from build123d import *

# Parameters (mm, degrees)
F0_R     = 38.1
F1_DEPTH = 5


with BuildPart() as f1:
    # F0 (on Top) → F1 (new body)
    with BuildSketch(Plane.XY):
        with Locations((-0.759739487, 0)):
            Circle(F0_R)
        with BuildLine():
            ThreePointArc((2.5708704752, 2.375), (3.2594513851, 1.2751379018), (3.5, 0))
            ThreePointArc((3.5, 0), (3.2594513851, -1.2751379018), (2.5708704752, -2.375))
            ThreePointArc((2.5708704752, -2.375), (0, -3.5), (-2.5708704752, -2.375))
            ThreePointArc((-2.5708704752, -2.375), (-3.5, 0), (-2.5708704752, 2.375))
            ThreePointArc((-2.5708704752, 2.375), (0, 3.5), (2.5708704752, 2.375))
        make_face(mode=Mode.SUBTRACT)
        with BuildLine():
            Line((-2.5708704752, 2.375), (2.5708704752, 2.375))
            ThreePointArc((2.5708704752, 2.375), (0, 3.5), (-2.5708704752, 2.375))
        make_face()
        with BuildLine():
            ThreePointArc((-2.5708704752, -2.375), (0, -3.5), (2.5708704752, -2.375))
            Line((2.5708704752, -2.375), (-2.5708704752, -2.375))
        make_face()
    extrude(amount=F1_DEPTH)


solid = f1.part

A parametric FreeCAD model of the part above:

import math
import FreeCAD as App
import Part
import Sketcher
Q = App.Units.Quantity

doc = App.newDocument("Part")
body = doc.addObject("PartDesign::Body", "Body")

# Sketch on XY plane
sketch1 = doc.addObject("Sketcher::SketchObject", "Sketch")
body.addObject(sketch1)
sketch1.AttachmentSupport = (doc.XY_Plane, [""])
sketch1.MapMode = "FlatFace"
sketch1.addGeometry(Part.Circle(App.Vector(-0.8, 0, 0), App.Vector(0, 0, 1), 38.1), False)
sketch1.addGeometry(Part.ArcOfCircle(Part.Circle(App.Vector(0, 0, 0), App.Vector(0, 0, 1), 3.5), math.radians(137), math.radians(223)), False)
sketch1.addGeometry(Part.LineSegment(App.Vector(-2.6, 2.4, 0), App.Vector(2.6, 2.4, 0)), False)
sketch1.addGeometry(Part.ArcOfCircle(Part.Circle(App.Vector(0, 0, 0), App.Vector(0, 0, 1), 3.5), math.radians(0), math.radians(43)), False)
sketch1.addGeometry(Part.ArcOfCircle(Part.Circle(App.Vector(0, 0, 0), App.Vector(0, 0, 1), 3.5), math.radians(-43), math.radians(0)), False)
sketch1.addGeometry(Part.LineSegment(App.Vector(2.6, -2.4, 0), App.Vector(-2.6, -2.4, 0)), False)
sketch1.addConstraint(Sketcher.Constraint("Coincident", 1, 1, 2, 1))
sketch1.addConstraint(Sketcher.Constraint("Coincident", 2, 2, 3, 2))
sketch1.addConstraint(Sketcher.Constraint("Tangent", 3, 1, 4, 2))
sketch1.addConstraint(Sketcher.Constraint("Coincident", 4, 1, 5, 1))
sketch1.addConstraint(Sketcher.Constraint("Coincident", 5, 2, 1, 2))
sketch1.addConstraint(Sketcher.Constraint("Horizontal", 2))
sketch1.addConstraint(Sketcher.Constraint("Horizontal", 5))
sketch1.addConstraint(Sketcher.Constraint("Coincident", 1, 3, -1, 1))
sketch1.addConstraint(Sketcher.Constraint("Coincident", 3, 3, -1, 1))
sketch1.addConstraint(Sketcher.Constraint("Equal", 1, 3))
sketch1.addConstraint(Sketcher.Constraint("Equal", 3, 4))
sketch1.addConstraint(Sketcher.Constraint("PointOnObject", 0, 3, -1))
sketch1.addConstraint(Sketcher.Constraint("PointOnObject", 3, 1, -1))
sketch1.addConstraint(Sketcher.Constraint("Vertical", 2, 2, 4, 1))
sketch1.addConstraint(Sketcher.Constraint("Diameter", 0, Q("76.2 mm")))
sketch1.addConstraint(Sketcher.Constraint("Radius", 1, Q("3.5 mm")))
sketch1.addConstraint(Sketcher.Constraint("DistanceY", 5, 2, 1, 1, Q("4.75 mm")))
sketch1.addConstraint(Sketcher.Constraint("DistanceX", 0, 3, -1, 1, Q("0.759739 mm")))
pad1 = doc.addObject("PartDesign::Pad", "Pad")
body.addObject(pad1)
pad1.Profile = sketch1
pad1.Length = 5

doc.recompute()
